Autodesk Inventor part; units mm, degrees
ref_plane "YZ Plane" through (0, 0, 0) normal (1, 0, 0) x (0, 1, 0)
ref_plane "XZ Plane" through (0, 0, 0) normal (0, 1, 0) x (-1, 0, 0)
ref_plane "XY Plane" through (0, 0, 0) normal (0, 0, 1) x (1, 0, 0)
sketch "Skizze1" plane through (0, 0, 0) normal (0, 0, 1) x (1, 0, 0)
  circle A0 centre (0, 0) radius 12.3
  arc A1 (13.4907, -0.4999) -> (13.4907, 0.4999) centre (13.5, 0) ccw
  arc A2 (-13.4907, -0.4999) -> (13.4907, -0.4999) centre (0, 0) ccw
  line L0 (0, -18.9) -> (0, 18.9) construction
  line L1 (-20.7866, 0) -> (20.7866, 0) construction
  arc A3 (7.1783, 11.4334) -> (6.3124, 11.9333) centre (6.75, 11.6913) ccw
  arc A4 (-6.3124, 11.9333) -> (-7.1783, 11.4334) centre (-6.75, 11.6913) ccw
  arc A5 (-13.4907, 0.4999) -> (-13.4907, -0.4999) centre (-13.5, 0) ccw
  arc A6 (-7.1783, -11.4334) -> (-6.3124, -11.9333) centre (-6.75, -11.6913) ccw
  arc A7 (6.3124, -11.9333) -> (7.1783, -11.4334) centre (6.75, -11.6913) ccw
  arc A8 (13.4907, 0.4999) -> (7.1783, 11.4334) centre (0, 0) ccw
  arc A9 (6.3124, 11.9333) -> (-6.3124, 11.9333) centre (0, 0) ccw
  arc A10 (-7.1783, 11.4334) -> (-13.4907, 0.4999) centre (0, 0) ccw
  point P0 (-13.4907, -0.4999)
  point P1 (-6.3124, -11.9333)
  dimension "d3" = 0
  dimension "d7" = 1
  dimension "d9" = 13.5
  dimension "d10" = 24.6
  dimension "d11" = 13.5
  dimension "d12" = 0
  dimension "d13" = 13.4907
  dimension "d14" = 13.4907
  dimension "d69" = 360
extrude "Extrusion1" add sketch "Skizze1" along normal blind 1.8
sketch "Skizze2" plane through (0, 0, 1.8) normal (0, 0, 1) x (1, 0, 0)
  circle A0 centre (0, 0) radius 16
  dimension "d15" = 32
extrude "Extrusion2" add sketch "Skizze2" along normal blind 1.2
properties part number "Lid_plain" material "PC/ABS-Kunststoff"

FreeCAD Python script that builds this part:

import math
import FreeCAD as App
import Part
import Sketcher

doc = App.newDocument("Part")
body = doc.addObject("PartDesign::Body", "Body")

# Sketch on XY plane
sketch1 = body.newObject("Sketcher::SketchObject", "Sketch")
sketch1.AttachmentSupport = (doc.getObject("XY_Plane"), [""])
sketch1.MapMode = "FlatFace"
sketch1.addGeometry([
    Part.ArcOfCircle(Part.Circle(App.Vector(0, 0, 0), App.Vector(0, 0, 1), 13.5), math.radians(-58), math.radians(-2)),  # 0
    Part.ArcOfCircle(Part.Circle(App.Vector(13.5, 0, 0), App.Vector(0, 0, 1), 0.5), math.radians(-91), math.radians(91)),  # 1
    Part.ArcOfCircle(Part.Circle(App.Vector(0, 0, 0), App.Vector(0, 0, 1), 13.5), math.radians(2), math.radians(58)),  # 2
    Part.ArcOfCircle(Part.Circle(App.Vector(6.75, 11.69, 0), App.Vector(0, 0, 1), 0.5), math.radians(-31), math.radians(151)),  # 3
    Part.ArcOfCircle(Part.Circle(App.Vector(0, 0, 0), App.Vector(0, 0, 1), 13.5), math.radians(62), math.radians(118)),  # 4
    Part.ArcOfCircle(Part.Circle(App.Vector(-6.75, 11.69, 0), App.Vector(0, 0, 1), 0.5), math.radians(29), math.radians(211)),  # 5
    Part.ArcOfCircle(Part.Circle(App.Vector(0, 0, 0), App.Vector(0, 0, 1), 13.5), math.radians(122), math.radians(178)),  # 6
    Part.ArcOfCircle(Part.Circle(App.Vector(-13.5, 0, 0), App.Vector(0, 0, 1), 0.5), math.radians(89), math.radians(271)),  # 7
    Part.ArcOfCircle(Part.Circle(App.Vector(0, 0, 0), App.Vector(0, 0, 1), 13.5), math.radians(-178), math.radians(-122)),  # 8
    Part.ArcOfCircle(Part.Circle(App.Vector(-6.75, -11.69, 0), App.Vector(0, 0, 1), 0.5), math.radians(149), math.radians(331)),  # 9
    Part.ArcOfCircle(Part.Circle(App.Vector(0, 0, 0), App.Vector(0, 0, 1), 13.5), math.radians(-118), math.radians(-62)),  # 10
    Part.ArcOfCircle(Part.Circle(App.Vector(6.75, -11.69, 0), App.Vector(0, 0, 1), 0.5), math.radians(-151), math.radians(31)),  # 11
    Part.Circle(App.Vector(0, 0, 0), App.Vector(0, 0, 1), 12.3),  # 12
], False)
sketch1.addConstraint([
    Sketcher.Constraint("Coincident", 0, 2, 1, 1),
    Sketcher.Constraint("Coincident", 1, 2, 2, 1),
    Sketcher.Constraint("Coincident", 2, 2, 3, 1),
    Sketcher.Constraint("Coincident", 3, 2, 4, 1),
    Sketcher.Constraint("Coincident", 4, 2, 5, 1),
    Sketcher.Constraint("Coincident", 5, 2, 6, 1),
    Sketcher.Constraint("Coincident", 6, 2, 7, 1),
    Sketcher.Constraint("Coincident", 7, 2, 8, 1),
    Sketcher.Constraint("Coincident", 8, 2, 9, 1),
    Sketcher.Constraint("Coincident", 9, 2, 10, 1),
    Sketcher.Constraint("Coincident", 10, 2, 11, 1),
    Sketcher.Constraint("Coincident", 11, 2, 0, 1),
    Sketcher.Constraint("Coincident", 0, 3, -1, 1),
    Sketcher.Constraint("Coincident", 2, 3, -1, 1),
    Sketcher.Constraint("Coincident", 4, 3, -1, 1),
    Sketcher.Constraint("Coincident", 6, 3, -1, 1),
    Sketcher.Constraint("Coincident", 8, 3, -1, 1),
    Sketcher.Constraint("Coincident", 10, 3, -1, 1),
    Sketcher.Constraint("Coincident", 12, 3, -1, 1),
    Sketcher.Constraint("Equal", 0, 2),
    Sketcher.Constraint("Equal", 1, 3),
    Sketcher.Constraint("Equal", 2, 4),
    Sketcher.Constraint("Equal", 3, 5),
    Sketcher.Constraint("Equal", 4, 6),
    Sketcher.Constraint("Equal", 5, 7),
    Sketcher.Constraint("Equal", 6, 8),
    Sketcher.Constraint("Equal", 7, 9),
    Sketcher.Constraint("Equal", 8, 10),
    Sketcher.Constraint("Equal", 9, 11),
    Sketcher.Constraint("Symmetric", 1, 3, 7, 3, -1, 1),
    Sketcher.Constraint("Symmetric", 3, 3, 9, 3, -1, 1),
    Sketcher.Constraint("Symmetric", 5, 3, 11, 3, -1, 1),
    Sketcher.Constraint("Symmetric", 3, 3, 5, 3, -2),
    Sketcher.Constraint("PointOnObject", 1, 3, -1),
    Sketcher.Constraint("Diameter", 12, 24.6),
    Sketcher.Constraint("Radius", 0, 13.5),
    Sketcher.Constraint("Radius", 1, 0.5),
    Sketcher.Constraint("DistanceX", -1, 1, 1, 3, 13.5),
    Sketcher.Constraint("DistanceX", 5, 3, 3, 3, 13.5),
    Sketcher.Constraint("DistanceX", 4, 2, 2, 2, 13.4907),
])
pad1 = body.newObject("PartDesign::Pad", "Pad")
pad1.Profile = sketch1
pad1.Length = 1.8

# Sketch on XY plane
sketch2 = body.newObject("Sketcher::SketchObject", "Sketch001")
sketch2.AttachmentSupport = (doc.getObject("XY_Plane"), [""])
sketch2.MapMode = "FlatFace"
sketch2.AttachmentOffset = App.Placement(App.Vector(0, 0, 1.8), App.Rotation())
sketch2.addGeometry(Part.Circle(App.Vector(0, 0, 0), App.Vector(0, 0, 1), 16), False)
sketch2.addConstraint([
    Sketcher.Constraint("Coincident", 0, 3, -1, 1),
    Sketcher.Constraint("Diameter", 0, 32.0),
])
pad2 = body.newObject("PartDesign::Pad", "Pad001")
pad2.Profile = sketch2
pad2.Length = 1.2

doc.recompute()
